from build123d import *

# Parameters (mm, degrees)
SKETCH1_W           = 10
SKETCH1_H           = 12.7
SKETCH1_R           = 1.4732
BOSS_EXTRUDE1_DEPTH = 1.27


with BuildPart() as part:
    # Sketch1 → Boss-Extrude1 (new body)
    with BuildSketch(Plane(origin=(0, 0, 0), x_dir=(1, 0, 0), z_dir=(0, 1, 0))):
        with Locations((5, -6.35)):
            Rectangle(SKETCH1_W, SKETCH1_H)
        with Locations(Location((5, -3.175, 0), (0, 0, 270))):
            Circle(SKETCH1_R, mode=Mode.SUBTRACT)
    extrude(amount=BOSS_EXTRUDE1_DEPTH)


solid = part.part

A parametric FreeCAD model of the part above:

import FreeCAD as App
import Part
import Sketcher
Q = App.Units.Quantity

doc = App.newDocument("Part")
params = doc.addObject("Spreadsheet::Sheet", "Params")
for row, (alias, value) in enumerate([
    ("sketch1_diameter", "0.116 in"),
    ("sketch1_height", "0.5 in"),
    ("pad1_length", "0.05 in"),
], start=1):
    params.set(f"A{row}", alias)
    params.set(f"B{row}", "=" + value)
    params.setAlias(f"B{row}", alias)

body = doc.addObject("PartDesign::Body", "Body")

# Sketch on XZ plane
sketch1 = body.newObject("Sketcher::SketchObject", "Sketch")
sketch1.AttachmentSupport = (doc.getObject("XZ_Plane"), [""])
sketch1.MapMode = "FlatFace"
sketch1.addGeometry([
    Part.LineSegment(App.Vector(0, 0, 0), App.Vector(0, 12.7, 0)),  # 0
    Part.LineSegment(App.Vector(0, 12.7, 0), App.Vector(10, 12.7, 0)),  # 1
    Part.LineSegment(App.Vector(10, 12.7, 0), App.Vector(10, 0, 0)),  # 2
    Part.LineSegment(App.Vector(10, 0, 0), App.Vector(0, 0, 0)),  # 3
    Part.Circle(App.Vector(5, 3.2, 0), App.Vector(0, 0, 1), 1.5),  # 4
], False)
sketch1.addConstraint([
    Sketcher.Constraint("Coincident", 0, 2, 1, 1),
    Sketcher.Constraint("Coincident", 1, 2, 2, 1),
    Sketcher.Constraint("Coincident", 2, 2, 3, 1),
    Sketcher.Constraint("Coincident", 3, 2, 0, 1),
    Sketcher.Constraint("Vertical", 0),
    Sketcher.Constraint("Horizontal", 1),
    Sketcher.Constraint("Vertical", 2),
    Sketcher.Constraint("Horizontal", 3),
    Sketcher.Constraint("Coincident", 3, 2, -1, 1),
    Sketcher.Constraint("Diameter", 4, Q("0.116 in")),
    Sketcher.Constraint("DistanceY", 0, 1, 0, 2, Q("0.5 in")),
    Sketcher.Constraint("DistanceY", -1, 1, 4, 3, Q("0.125 in")),
    Sketcher.Constraint("DistanceX", 1, 1, 1, 2, Q("10 mm")),
    Sketcher.Constraint("DistanceX", -1, 1, 4, 3, Q("5 mm")),
])
sketch1.setExpression("Constraints[9]", "Params.sketch1_diameter")
sketch1.setExpression("Constraints[10]", "Params.sketch1_height")
pad1 = body.newObject("PartDesign::Pad", "Pad")
pad1.Profile = sketch1
pad1.setExpression("Length", "Params.pad1_length")
pad1.Reversed = True

doc.recompute()
